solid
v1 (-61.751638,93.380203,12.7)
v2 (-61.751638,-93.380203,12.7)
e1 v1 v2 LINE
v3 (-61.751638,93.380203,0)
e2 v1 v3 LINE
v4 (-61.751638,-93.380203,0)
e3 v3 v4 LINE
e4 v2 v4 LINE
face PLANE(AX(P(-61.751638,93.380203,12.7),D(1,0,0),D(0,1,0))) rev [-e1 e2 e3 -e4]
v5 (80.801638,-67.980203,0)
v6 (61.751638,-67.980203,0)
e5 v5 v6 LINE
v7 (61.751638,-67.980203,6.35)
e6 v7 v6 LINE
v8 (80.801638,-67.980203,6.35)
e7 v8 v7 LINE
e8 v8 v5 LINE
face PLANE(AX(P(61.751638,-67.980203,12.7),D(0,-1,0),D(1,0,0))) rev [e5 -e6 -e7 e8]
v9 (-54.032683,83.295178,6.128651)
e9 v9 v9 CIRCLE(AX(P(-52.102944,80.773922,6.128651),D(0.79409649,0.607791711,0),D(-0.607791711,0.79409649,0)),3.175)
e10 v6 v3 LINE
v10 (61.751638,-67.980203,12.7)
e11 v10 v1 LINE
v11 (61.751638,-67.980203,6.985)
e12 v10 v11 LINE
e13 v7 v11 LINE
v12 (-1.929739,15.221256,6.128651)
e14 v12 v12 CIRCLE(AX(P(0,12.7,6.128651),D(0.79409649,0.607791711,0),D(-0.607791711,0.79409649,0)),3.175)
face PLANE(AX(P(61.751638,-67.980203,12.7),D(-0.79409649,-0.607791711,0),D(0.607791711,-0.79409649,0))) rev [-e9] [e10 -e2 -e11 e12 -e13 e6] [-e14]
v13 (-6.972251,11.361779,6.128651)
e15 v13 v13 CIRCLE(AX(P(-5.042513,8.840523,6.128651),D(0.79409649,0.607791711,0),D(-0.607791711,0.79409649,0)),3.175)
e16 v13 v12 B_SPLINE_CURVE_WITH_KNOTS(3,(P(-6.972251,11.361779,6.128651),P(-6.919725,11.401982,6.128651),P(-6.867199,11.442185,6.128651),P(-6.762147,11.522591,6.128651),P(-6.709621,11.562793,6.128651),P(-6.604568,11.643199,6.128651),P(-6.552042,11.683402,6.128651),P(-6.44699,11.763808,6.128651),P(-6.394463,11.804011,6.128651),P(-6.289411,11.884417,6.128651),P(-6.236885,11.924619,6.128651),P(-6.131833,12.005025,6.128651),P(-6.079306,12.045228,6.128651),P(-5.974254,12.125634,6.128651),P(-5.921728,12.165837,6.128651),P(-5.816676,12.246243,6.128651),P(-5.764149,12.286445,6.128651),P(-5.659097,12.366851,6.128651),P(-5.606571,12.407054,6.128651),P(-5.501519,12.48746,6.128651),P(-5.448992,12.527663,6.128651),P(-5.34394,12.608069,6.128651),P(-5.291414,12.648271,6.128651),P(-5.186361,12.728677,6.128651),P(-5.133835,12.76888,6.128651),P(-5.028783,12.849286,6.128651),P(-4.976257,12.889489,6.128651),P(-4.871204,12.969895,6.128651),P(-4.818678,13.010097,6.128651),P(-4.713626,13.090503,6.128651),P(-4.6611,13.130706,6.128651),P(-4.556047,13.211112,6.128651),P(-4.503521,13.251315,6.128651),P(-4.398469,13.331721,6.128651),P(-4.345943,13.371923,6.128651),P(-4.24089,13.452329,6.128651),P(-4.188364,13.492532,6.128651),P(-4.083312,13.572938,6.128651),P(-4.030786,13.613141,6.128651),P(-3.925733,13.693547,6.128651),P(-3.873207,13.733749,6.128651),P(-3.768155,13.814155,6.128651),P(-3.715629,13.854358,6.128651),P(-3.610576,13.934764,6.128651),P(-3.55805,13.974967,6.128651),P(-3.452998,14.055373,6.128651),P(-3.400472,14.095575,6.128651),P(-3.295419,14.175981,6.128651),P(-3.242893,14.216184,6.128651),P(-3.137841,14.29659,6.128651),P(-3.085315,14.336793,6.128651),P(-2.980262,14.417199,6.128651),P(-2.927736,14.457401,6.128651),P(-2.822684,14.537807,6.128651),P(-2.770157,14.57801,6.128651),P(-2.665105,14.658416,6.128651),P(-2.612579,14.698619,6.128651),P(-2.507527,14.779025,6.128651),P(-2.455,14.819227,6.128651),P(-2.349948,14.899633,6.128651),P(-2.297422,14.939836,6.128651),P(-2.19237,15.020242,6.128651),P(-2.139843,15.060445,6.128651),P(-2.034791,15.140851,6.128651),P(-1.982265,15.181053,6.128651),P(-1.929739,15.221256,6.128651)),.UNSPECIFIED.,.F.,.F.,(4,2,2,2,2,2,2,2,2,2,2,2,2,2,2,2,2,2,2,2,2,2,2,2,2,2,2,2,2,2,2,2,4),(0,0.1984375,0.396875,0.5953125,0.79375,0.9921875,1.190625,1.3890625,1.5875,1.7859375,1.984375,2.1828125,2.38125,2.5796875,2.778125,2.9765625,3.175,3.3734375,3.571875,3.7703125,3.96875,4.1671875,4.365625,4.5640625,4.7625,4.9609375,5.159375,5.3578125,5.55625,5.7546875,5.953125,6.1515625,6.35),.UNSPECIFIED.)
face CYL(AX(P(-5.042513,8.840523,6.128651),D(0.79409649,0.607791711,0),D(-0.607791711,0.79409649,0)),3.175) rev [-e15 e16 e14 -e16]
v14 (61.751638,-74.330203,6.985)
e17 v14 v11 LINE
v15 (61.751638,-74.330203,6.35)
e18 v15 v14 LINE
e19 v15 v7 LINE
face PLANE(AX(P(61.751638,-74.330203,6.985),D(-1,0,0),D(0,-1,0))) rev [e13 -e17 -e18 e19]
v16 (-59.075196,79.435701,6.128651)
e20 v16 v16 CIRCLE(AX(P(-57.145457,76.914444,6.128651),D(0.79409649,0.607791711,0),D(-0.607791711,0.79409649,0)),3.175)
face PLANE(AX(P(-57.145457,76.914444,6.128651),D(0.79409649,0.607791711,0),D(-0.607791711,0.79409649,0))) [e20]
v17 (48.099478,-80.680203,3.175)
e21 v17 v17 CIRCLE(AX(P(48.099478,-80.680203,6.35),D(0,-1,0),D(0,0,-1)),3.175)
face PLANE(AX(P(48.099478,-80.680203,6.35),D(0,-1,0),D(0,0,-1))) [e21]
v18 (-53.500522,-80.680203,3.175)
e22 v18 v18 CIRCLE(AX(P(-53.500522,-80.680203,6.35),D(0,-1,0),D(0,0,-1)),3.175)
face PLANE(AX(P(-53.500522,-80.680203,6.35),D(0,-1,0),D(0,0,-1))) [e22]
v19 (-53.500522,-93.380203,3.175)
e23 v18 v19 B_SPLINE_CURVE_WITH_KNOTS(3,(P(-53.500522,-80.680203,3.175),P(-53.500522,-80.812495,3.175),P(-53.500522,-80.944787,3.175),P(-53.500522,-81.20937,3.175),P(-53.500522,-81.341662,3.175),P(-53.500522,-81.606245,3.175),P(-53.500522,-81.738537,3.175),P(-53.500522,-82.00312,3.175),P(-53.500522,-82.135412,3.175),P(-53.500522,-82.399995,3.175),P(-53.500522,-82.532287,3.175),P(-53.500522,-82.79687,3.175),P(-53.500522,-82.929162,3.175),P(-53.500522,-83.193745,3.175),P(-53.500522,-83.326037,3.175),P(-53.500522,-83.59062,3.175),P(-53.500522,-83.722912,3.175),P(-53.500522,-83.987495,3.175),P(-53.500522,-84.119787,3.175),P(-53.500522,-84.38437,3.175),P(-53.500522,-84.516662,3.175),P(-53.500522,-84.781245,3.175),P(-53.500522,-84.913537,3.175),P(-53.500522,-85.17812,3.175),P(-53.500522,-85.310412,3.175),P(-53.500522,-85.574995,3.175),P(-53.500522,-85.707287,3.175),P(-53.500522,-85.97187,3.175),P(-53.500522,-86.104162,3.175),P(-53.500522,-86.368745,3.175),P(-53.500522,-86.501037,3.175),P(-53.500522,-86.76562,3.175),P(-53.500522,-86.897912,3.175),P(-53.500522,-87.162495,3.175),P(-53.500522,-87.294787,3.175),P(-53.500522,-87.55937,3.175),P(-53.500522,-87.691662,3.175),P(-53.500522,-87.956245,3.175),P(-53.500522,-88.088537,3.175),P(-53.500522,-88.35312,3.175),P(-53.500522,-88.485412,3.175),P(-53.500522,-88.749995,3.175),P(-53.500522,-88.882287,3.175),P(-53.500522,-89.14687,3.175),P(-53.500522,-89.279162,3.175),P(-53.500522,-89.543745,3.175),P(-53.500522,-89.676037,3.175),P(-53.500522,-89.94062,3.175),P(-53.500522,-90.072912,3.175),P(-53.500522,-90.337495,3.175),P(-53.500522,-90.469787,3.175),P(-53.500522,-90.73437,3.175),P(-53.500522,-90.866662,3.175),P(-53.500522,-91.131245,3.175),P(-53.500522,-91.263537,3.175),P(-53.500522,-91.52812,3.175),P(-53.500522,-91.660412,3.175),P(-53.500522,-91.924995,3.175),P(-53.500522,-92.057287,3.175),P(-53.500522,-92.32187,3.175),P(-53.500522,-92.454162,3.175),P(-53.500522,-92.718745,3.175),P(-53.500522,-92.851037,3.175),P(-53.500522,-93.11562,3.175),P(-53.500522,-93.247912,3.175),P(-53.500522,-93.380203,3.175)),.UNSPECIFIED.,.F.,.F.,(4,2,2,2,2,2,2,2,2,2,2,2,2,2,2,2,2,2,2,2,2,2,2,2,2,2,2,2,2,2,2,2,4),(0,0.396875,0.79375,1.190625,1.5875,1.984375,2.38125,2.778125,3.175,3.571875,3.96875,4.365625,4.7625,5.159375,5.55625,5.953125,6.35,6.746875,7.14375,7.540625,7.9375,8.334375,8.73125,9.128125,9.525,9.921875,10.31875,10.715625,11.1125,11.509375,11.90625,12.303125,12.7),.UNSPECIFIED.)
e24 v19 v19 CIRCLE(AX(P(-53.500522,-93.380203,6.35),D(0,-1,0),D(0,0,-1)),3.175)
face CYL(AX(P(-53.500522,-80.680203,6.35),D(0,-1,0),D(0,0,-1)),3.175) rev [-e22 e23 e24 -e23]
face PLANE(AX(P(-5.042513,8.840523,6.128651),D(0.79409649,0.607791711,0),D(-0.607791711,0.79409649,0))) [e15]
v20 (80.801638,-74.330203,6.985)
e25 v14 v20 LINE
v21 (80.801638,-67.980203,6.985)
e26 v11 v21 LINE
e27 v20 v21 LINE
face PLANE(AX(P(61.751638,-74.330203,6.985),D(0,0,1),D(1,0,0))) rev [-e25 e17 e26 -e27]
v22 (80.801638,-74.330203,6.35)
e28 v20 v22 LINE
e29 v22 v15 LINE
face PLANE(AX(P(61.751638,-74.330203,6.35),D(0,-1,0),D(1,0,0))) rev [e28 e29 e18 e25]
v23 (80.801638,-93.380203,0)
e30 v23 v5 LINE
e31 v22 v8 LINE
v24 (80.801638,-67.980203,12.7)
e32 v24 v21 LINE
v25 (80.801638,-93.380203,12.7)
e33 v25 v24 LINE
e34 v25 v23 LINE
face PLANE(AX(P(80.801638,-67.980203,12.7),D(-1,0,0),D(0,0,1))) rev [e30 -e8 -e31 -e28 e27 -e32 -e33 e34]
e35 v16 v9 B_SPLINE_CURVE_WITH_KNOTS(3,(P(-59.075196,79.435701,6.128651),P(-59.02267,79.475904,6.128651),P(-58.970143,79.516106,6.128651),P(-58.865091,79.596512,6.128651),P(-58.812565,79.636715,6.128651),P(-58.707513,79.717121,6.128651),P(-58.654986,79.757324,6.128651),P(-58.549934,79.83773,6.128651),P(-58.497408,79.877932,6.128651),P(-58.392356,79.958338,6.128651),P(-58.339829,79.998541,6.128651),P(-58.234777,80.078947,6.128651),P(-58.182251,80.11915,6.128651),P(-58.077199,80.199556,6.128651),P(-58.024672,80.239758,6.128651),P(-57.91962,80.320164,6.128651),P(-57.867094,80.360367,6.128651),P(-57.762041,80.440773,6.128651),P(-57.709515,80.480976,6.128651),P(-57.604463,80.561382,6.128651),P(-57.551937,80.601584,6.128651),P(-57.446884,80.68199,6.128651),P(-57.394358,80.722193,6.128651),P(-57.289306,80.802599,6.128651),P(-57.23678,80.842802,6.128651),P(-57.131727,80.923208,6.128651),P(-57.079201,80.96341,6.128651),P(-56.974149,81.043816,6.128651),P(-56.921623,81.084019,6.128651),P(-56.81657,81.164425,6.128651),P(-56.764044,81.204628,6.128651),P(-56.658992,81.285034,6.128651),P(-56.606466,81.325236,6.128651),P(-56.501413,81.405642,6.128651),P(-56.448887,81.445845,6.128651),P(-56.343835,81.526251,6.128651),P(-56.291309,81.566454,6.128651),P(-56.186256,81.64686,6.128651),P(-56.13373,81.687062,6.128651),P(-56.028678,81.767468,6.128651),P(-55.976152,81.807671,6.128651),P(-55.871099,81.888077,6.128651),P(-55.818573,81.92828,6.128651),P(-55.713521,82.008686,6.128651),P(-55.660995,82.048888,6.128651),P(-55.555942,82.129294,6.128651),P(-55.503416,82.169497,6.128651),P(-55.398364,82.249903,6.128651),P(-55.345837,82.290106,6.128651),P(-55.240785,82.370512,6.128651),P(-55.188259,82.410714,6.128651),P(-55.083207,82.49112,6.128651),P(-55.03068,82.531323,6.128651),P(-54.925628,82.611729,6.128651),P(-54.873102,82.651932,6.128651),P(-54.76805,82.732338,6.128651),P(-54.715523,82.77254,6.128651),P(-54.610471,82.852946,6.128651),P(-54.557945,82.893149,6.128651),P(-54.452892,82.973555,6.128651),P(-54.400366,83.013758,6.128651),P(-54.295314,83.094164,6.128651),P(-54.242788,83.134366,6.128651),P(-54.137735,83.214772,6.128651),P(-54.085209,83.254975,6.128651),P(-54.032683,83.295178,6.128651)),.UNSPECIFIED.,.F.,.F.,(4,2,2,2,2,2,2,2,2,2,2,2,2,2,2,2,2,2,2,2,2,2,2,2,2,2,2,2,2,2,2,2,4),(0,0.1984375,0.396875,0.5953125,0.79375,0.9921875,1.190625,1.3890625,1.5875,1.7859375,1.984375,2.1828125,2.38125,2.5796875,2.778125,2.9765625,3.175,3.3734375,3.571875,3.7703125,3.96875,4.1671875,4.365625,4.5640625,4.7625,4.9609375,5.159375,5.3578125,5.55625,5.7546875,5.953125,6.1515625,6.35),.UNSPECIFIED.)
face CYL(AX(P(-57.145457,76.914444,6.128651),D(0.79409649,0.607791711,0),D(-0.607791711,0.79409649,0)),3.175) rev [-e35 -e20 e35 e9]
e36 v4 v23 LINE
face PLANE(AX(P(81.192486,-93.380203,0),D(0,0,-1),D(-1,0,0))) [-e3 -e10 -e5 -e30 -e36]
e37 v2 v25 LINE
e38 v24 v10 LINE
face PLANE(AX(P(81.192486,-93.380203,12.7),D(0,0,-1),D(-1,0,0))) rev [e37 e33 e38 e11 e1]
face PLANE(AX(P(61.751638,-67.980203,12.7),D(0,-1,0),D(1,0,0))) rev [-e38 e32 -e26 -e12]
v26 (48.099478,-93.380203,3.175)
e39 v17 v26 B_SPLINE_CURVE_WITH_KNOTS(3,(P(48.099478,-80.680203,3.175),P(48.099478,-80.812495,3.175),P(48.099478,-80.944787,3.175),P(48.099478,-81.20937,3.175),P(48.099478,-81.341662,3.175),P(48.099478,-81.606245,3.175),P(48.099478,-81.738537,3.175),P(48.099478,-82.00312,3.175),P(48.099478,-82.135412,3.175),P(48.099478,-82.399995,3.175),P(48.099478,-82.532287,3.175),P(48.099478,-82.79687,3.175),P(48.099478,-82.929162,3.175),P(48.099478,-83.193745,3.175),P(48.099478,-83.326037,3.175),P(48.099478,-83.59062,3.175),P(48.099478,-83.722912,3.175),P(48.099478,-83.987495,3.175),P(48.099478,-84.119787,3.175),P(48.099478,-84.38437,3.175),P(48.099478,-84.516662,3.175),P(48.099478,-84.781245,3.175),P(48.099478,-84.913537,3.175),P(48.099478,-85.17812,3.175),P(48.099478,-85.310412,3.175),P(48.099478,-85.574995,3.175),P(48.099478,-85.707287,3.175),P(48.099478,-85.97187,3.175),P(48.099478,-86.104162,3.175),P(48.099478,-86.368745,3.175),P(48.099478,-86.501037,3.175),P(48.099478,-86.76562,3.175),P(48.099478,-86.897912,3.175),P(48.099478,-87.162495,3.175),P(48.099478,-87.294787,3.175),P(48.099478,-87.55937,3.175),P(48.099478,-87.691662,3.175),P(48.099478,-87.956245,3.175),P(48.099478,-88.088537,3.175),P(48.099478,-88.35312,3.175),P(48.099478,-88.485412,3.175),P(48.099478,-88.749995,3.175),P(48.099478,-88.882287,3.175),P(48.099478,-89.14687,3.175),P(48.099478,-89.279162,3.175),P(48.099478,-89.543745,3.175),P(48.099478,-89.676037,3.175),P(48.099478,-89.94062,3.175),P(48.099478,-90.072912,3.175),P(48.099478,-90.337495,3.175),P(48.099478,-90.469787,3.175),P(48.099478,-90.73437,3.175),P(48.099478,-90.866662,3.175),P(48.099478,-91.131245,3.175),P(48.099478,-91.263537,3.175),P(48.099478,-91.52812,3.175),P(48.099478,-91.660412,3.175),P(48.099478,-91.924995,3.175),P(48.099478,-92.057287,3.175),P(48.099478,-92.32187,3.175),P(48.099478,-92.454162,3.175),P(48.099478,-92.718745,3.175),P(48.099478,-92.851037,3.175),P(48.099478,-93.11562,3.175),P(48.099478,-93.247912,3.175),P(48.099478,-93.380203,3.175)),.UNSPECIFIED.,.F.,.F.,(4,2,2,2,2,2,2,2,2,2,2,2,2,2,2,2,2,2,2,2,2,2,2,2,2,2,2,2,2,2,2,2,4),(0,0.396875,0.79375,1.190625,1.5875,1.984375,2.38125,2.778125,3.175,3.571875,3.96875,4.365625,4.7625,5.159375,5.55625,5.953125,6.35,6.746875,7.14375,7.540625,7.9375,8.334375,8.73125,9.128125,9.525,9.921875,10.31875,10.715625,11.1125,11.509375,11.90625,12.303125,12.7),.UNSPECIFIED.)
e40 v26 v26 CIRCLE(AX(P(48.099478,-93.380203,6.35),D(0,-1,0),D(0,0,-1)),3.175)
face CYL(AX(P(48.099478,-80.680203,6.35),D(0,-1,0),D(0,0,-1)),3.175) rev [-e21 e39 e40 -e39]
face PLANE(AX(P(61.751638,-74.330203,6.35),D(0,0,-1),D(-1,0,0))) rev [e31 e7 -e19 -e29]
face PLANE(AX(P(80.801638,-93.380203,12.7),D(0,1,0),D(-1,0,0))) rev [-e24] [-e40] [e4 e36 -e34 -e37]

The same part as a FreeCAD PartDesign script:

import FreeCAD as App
import Part
import Sketcher
Q = App.Units.Quantity

doc = App.newDocument("Part")
body = doc.addObject("PartDesign::Body", "Body")

sketch1 = body.newObject("Sketcher::SketchObject", "Sketch")
sketch1.AttachmentSupport = (doc.getObject("XY_Plane"), [""])
sketch1.MapMode = "FlatFace"
sketch1.addGeometry(Part.LineSegment(App.Vector(-61.751638, 93.380203, 0), App.Vector(-61.751638, -93.380203, 0)), False)
sketch1.addGeometry(Part.LineSegment(App.Vector(-61.751638, -93.380203, 0), App.Vector(80.801638, -93.380203, 0)), False)
sketch1.addGeometry(Part.LineSegment(App.Vector(80.801638, -93.380203, 0), App.Vector(80.801638, -67.980203, 0)), False)
sketch1.addGeometry(Part.LineSegment(App.Vector(80.801638, -67.980203, 0), App.Vector(61.751638, -67.980203, 0)), False)
sketch1.addGeometry(Part.LineSegment(App.Vector(61.751638, -67.980203, 0), App.Vector(-61.751638, 93.380203, 0)), False)
sketch1.addConstraint(Sketcher.Constraint("Coincident", 0, 2, 1, 1))
sketch1.addConstraint(Sketcher.Constraint("Coincident", 1, 2, 2, 1))
sketch1.addConstraint(Sketcher.Constraint("Coincident", 2, 2, 3, 1))
sketch1.addConstraint(Sketcher.Constraint("Coincident", 3, 2, 4, 1))
sketch1.addConstraint(Sketcher.Constraint("Coincident", 4, 2, 0, 1))
sketch1.addConstraint(Sketcher.Constraint("Vertical", 0))
sketch1.addConstraint(Sketcher.Constraint("Horizontal", 1))
sketch1.addConstraint(Sketcher.Constraint("Vertical", 2))
sketch1.addConstraint(Sketcher.Constraint("Horizontal", 3))
sketch1.addConstraint(Sketcher.Constraint("DistanceY", 2, 1, 2, 2, Q("1 in")))
sketch1.addConstraint(Sketcher.Constraint("Distance", 4, Q("8 in")))
sketch1.addConstraint(Sketcher.Constraint("DistanceX", 3, 2, 3, 1, Q("0.75 in")))
sketch1.addConstraint(Sketcher.Constraint("Angle", 4, Q("127.43 deg")))
sketch1.addConstraint(Sketcher.Constraint("DistanceX", 0, 2, -1, 1, 61.751638))
sketch1.addConstraint(Sketcher.Constraint("DistanceY", 0, 2, -1, 1, 93.380203))
pad1 = body.newObject("PartDesign::Pad", "Pad")
pad1.Profile = sketch1
pad1.Length = Q("0.5 in")

sketch2 = body.newObject("Sketcher::SketchObject", "Sketch001")
sketch2.AttachmentSupport = (doc.getObject("XZ_Plane"), [""])
sketch2.MapMode = "FlatFace"
sketch2.AttachmentOffset = App.Placement(App.Vector(0, 0, 93.380203), App.Rotation())
sketch2.addGeometry(Part.Circle(App.Vector(-53.500522, 6.35, 0), App.Vector(0, 0, 1), 3.175), False)
sketch2.addGeometry(Part.Circle(App.Vector(48.099478, 6.35, 0), App.Vector(0, 0, 1), 3.175), False)
sketch2.addConstraint(Sketcher.Constraint("Equal", 0, 1))
sketch2.addConstraint(Sketcher.Constraint("Horizontal", 0, 3, 1, 3))
sketch2.addConstraint(Sketcher.Constraint("Diameter", 0, Q("0.25 in")))
sketch2.addConstraint(Sketcher.Constraint("DistanceX", 0, 3, 1, 3, Q("4 in")))
sketch2.addConstraint(Sketcher.Constraint("DistanceY", -1, 1, 0, 3, Q("0.25 in")))
sketch2.addConstraint(Sketcher.Constraint("DistanceX", 0, 3, -1, 1, 53.500522))
pocket1 = body.newObject("PartDesign::Pocket", "Pocket")
pocket1.Profile = sketch2
pocket1.Length = Q("0.5 in")

sketch3 = body.newObject("Sketcher::SketchObject", "Sketch002")
sketch3.Placement = App.Placement(App.Vector(6.129595, 4.691517, 0), App.Rotation(App.Vector(0, 0, -1), App.Vector(-0.607791711, 0.79409649, 0), App.Vector(0.79409649, 0.607791711, 0), "ZXY"))
sketch3.addGeometry(Part.Circle(App.Vector(-6.128651, 95.810025, 0), App.Vector(0, 0, 1), 3.175), False)
sketch3.addGeometry(Part.Circle(App.Vector(-6.128651, 10.085025, 0), App.Vector(0, 0, 1), 3.175), False)
sketch3.addConstraint(Sketcher.Constraint("Equal", 0, 1))
sketch3.addConstraint(Sketcher.Constraint("Vertical", 0, 3, 1, 3))
sketch3.addConstraint(Sketcher.Constraint("Diameter", 0, Q("0.25 in")))
sketch3.addConstraint(Sketcher.Constraint("DistanceY", 1, 3, 0, 3, Q("3.375 in")))
sketch3.addConstraint(Sketcher.Constraint("DistanceX", 0, 3, -1, 1, 6.128651))
sketch3.addConstraint(Sketcher.Constraint("DistanceY", -1, 1, 0, 3, 95.810025))
pocket2 = body.newObject("PartDesign::Pocket", "Pocket001")
pocket2.Profile = sketch3
pocket2.Length = Q("0.25 in")

sketch4 = body.newObject("Sketcher::SketchObject", "Sketch003")
sketch4.AttachmentSupport = (doc.getObject("XZ_Plane"), [""])
sketch4.MapMode = "FlatFace"
sketch4.AttachmentOffset = App.Placement(App.Vector(0, 0, 67.980203), App.Rotation())
sketch4.addGeometry(Part.LineSegment(App.Vector(61.751638, 6.35, 0), App.Vector(61.751638, 6.985, 0)), False)
sketch4.addGeometry(Part.LineSegment(App.Vector(61.751638, 6.985, 0), App.Vector(80.801638, 6.985, 0)), False)
sketch4.addGeometry(Part.LineSegment(App.Vector(80.801638, 6.985, 0), App.Vector(80.801638, 6.35, 0)), False)
sketch4.addGeometry(Part.LineSegment(App.Vector(80.801638, 6.35, 0), App.Vector(61.751638, 6.35, 0)), False)
sketch4.addConstraint(Sketcher.Constraint("Coincident", 0, 2, 1, 1))
sketch4.addConstraint(Sketcher.Constraint("Coincident", 1, 2, 2, 1))
sketch4.addConstraint(Sketcher.Constraint("Coincident", 2, 2, 3, 1))
sketch4.addConstraint(Sketcher.Constraint("Coincident", 3, 2, 0, 1))
sketch4.addConstraint(Sketcher.Constraint("Vertical", 0))
sketch4.addConstraint(Sketcher.Constraint("Horizontal", 1))
sketch4.addConstraint(Sketcher.Constraint("Vertical", 2))
sketch4.addConstraint(Sketcher.Constraint("Horizontal", 3))
sketch4.addConstraint(Sketcher.Constraint("DistanceX", 1, 1, 1, 2, Q("0.75 in")))
sketch4.addConstraint(Sketcher.Constraint("DistanceY", 0, 1, 0, 2, Q("0.025 in")))
sketch4.addConstraint(Sketcher.Constraint("DistanceY", -1, 1, 2, 2, Q("0.25 in")))
sketch4.addConstraint(Sketcher.Constraint("DistanceX", -1, 1, 0, 2, 61.751638))
pocket3 = body.newObject("PartDesign::Pocket", "Pocket002")
pocket3.Profile = sketch4
pocket3.Length = Q("0.25 in")
pocket3.Reversed = True

doc.recompute()
